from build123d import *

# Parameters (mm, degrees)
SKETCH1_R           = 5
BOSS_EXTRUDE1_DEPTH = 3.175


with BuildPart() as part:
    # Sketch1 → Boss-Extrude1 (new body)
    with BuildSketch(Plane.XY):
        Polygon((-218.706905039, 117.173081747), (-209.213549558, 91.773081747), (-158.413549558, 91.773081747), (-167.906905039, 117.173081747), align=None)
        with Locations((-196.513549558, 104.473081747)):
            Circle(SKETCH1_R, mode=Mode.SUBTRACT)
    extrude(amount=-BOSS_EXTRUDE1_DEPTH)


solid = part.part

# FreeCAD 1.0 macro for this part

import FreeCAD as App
import Part
import Sketcher
from FreeCAD import Vector
Q = App.Units.Quantity


def add_polygon(sketch, points):
    """Adds a closed chain of lines whose ends are joined by coincident constraints."""
    first, n = sketch.GeometryCount, len(points)
    for a, b in zip(points, points[1:] + points[:1]):
        sketch.addGeometry(Part.LineSegment(App.Vector(*a, 0), App.Vector(*b, 0)), False)
    for i in range(n):
        sketch.addConstraint(Sketcher.Constraint("Coincident", first + i, 2, first + (i + 1) % n, 1))

doc = App.newDocument("Part")
body = doc.addObject("PartDesign::Body", "Body")

# Sketch on XY plane
sketch1 = body.newObject("Sketcher::SketchObject", "Sketch")
sketch1.AttachmentSupport = (doc.getObject("XY_Plane"), [""])
sketch1.MapMode = "FlatFace"
add_polygon(sketch1, [(-219, 117), (-209, 92), (-158, 92), (-168, 117)])  # lines 0-3
sketch1.addGeometry(Part.Circle(Vector(-197, 104, 0), Vector(0, 0, 1), 5), False)  # 4
sketch1.addConstraint([
    Sketcher.Constraint("Horizontal", 1),
    Sketcher.Constraint("Horizontal", 3),
    Sketcher.Constraint("Parallel", 0, 2),
    Sketcher.Constraint("DistanceX", 1, 1, 1, 2, Q("2 in")),
    Sketcher.Constraint("DistanceY", 1, 2, 2, 2, Q("1 in")),
    Sketcher.Constraint("DistanceX", 0, 2, 4, 3, Q("0.5 in")),
    Sketcher.Constraint("DistanceY", 0, 2, 4, 3, Q("0.5 in")),
    Sketcher.Constraint("Diameter", 4, Q("10 mm")),
    Sketcher.Constraint("DistanceX", 4, 3, -1, 1, Q("196.51355 mm")),
    Sketcher.Constraint("DistanceY", -1, 1, 4, 3, Q("104.473082 mm")),
    Sketcher.Constraint("Distance", 0, Q("27.116117 mm")),
])
pad1 = body.newObject("PartDesign::Pad", "Pad")
pad1.Profile = sketch1
pad1.Length = Q("0.125 in")
pad1.Reversed = True

doc.recompute()
